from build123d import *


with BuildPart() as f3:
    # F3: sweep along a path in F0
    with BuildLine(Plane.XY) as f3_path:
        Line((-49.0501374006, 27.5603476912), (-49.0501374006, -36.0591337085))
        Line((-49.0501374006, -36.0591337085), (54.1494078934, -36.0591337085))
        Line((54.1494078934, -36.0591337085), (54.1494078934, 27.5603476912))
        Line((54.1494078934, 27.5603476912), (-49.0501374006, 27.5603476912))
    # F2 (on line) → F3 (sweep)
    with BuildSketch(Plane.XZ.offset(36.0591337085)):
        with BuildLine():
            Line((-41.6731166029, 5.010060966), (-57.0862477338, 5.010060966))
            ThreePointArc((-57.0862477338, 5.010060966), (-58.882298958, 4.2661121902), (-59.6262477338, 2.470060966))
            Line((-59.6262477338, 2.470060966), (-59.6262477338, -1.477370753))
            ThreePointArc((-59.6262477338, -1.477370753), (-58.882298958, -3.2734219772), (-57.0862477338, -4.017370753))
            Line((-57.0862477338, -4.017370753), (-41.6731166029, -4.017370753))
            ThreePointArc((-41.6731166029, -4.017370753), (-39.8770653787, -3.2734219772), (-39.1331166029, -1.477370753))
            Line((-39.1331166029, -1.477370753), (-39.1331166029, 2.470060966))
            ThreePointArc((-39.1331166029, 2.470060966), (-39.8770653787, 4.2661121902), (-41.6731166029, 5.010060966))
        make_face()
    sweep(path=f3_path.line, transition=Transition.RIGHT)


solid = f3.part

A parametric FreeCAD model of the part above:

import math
import FreeCAD as App
import Part
import Sketcher

V = App.Vector
Q = App.Units.Quantity


def add_polygon(sketch, points):
    """Adds a closed chain of lines whose ends are joined by coincident constraints."""
    first, n = sketch.GeometryCount, len(points)
    for a, b in zip(points, points[1:] + points[:1]):
        sketch.addGeometry(Part.LineSegment(App.Vector(*a, 0), App.Vector(*b, 0)), False)
    for i in range(n):
        sketch.addConstraint(Sketcher.Constraint("Coincident", first + i, 2, first + (i + 1) % n, 1))

doc = App.newDocument("Part")
body = doc.addObject("PartDesign::Body", "Body")

sketch1 = doc.addObject("Sketcher::SketchObject", "Sketch")
body.addObject(sketch1)
sketch1.AttachmentSupport = (doc.XZ_Plane, [""])
sketch1.MapMode = "FlatFace"
sketch1.AttachmentOffset = App.Placement(V(0, 0, 36.059134), App.Rotation())
sketch1.addGeometry([
    Part.LineSegment(V(-41.7, 5, 0), V(-57.1, 5, 0)),
    Part.ArcOfCircle(Part.Circle(V(-57.1, 2.5, 0), V(0, 0, 1), 2.5), math.radians(90), math.radians(180)),
    Part.LineSegment(V(-59.6, 2.5, 0), V(-59.6, -1.5, 0)),
    Part.ArcOfCircle(Part.Circle(V(-57.1, -1.5, 0), V(0, 0, 1), 2.5), math.radians(180), math.radians(270)),
    Part.LineSegment(V(-57.1, -4, 0), V(-41.7, -4, 0)),
    Part.ArcOfCircle(Part.Circle(V(-41.7, -1.5, 0), V(0, 0, 1), 2.5), math.radians(-90), math.radians(0)),
    Part.LineSegment(V(-39.1, -1.5, 0), V(-39.1, 2.5, 0)),
    Part.ArcOfCircle(Part.Circle(V(-41.7, 2.5, 0), V(0, 0, 1), 2.5), math.radians(0), math.radians(90)),
], False)
sketch1.addConstraint([
    Sketcher.Constraint("Tangent", 0, 2, 1, 1),
    Sketcher.Constraint("Tangent", 1, 2, 2, 1),
    Sketcher.Constraint("Tangent", 2, 2, 3, 1),
    Sketcher.Constraint("Tangent", 3, 2, 4, 1),
    Sketcher.Constraint("Tangent", 4, 2, 5, 1),
    Sketcher.Constraint("Tangent", 5, 2, 6, 1),
    Sketcher.Constraint("Tangent", 6, 2, 7, 1),
    Sketcher.Constraint("Tangent", 7, 2, 0, 1),
    Sketcher.Constraint("Horizontal", 0),
    Sketcher.Constraint("Vertical", 2),
    Sketcher.Constraint("Horizontal", 4),
    Sketcher.Constraint("Vertical", 6),
    Sketcher.Constraint("Equal", 1, 3),
    Sketcher.Constraint("Equal", 3, 5),
    Sketcher.Constraint("Equal", 5, 7),
    Sketcher.Constraint("Radius", 1, Q("0.1 in")),
    Sketcher.Constraint("DistanceX", 0, 2, 0, 1, Q("15.413131 mm")),
    Sketcher.Constraint("DistanceY", 2, 2, 2, 1, Q("3.947432 mm")),
    Sketcher.Constraint("DistanceY", -1, 1, 1, 3, Q("2.470061 mm")),
    Sketcher.Constraint("DistanceX", 1, 3, -1, 1, Q("57.086248 mm")),
])

sketch2 = doc.addObject("Sketcher::SketchObject", "Sketch001")
body.addObject(sketch2)
sketch2.AttachmentSupport = (doc.XY_Plane, [""])
sketch2.MapMode = "FlatFace"
add_polygon(sketch2, [(-49, 28), (-49, -36), (54, -36), (54, 28)])
sketch2.addConstraint([
    Sketcher.Constraint("Vertical", 0),
    Sketcher.Constraint("Horizontal", 1),
    Sketcher.Constraint("Vertical", 2),
    Sketcher.Constraint("Horizontal", 3),
    Sketcher.Constraint("DistanceY", 0, 2, 0, 1, Q("63.619481 mm")),
    Sketcher.Constraint("DistanceX", 1, 1, 1, 2, Q("103.199545 mm")),
    Sketcher.Constraint("DistanceX", 0, 2, -1, 1, Q("49.050137 mm")),
    Sketcher.Constraint("DistanceY", 0, 2, -1, 1, Q("36.059134 mm")),
])
doc.recompute()

additivepipe = doc.addObject("PartDesign::AdditivePipe", "AdditivePipe")
body.addObject(additivepipe)
additivepipe.Profile = sketch1
additivepipe.Spine = (sketch2, ["Edge1", "Edge2", "Edge3", "Edge4"])
additivepipe.Transition = "Right corner"

doc.recompute()
